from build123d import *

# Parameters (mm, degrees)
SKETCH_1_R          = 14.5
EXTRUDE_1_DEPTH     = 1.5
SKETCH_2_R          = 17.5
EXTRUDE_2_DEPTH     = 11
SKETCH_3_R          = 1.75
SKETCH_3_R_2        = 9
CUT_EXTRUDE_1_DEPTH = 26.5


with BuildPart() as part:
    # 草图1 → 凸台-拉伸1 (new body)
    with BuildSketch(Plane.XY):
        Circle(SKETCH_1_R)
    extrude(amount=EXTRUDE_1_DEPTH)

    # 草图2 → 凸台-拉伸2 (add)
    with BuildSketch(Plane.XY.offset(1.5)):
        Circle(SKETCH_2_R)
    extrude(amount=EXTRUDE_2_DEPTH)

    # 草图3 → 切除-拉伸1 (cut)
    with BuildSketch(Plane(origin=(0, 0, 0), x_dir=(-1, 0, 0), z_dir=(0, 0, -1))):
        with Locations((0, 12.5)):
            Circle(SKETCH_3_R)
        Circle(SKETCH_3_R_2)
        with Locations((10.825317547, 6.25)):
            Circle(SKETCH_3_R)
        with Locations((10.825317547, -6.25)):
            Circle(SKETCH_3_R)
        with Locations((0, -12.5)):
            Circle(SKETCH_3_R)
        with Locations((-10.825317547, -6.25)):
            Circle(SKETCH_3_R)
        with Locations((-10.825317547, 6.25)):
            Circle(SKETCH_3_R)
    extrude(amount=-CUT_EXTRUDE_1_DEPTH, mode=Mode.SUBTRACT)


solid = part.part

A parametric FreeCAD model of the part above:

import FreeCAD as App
import Part
import Sketcher

doc = App.newDocument("Part")
body = doc.addObject("PartDesign::Body", "Body")

# Sketch on XY plane
sketch1 = doc.addObject("Sketcher::SketchObject", "Sketch")
body.addObject(sketch1)
sketch1.AttachmentSupport = (doc.XY_Plane, [""])
sketch1.MapMode = "FlatFace"
sketch1.addGeometry(Part.Circle(App.Vector(0, 0, 0), App.Vector(0, 0, 1), 14), False)
sketch1.addConstraint([
    Sketcher.Constraint("Coincident", 0, 3, -1, 1),
    Sketcher.Constraint("Diameter", 0, 29.0),
])
pad1 = doc.addObject("PartDesign::Pad", "Pad")
body.addObject(pad1)
pad1.Profile = sketch1
pad1.Length = 1.5

# Sketch on XY plane
sketch2 = doc.addObject("Sketcher::SketchObject", "Sketch001")
body.addObject(sketch2)
sketch2.AttachmentSupport = (doc.XY_Plane, [""])
sketch2.MapMode = "FlatFace"
sketch2.AttachmentOffset = App.Placement(App.Vector(0, 0, 1.5), App.Rotation())
sketch2.addGeometry(Part.Circle(App.Vector(0, 0, 0), App.Vector(0, 0, 1), 18), False)
sketch2.addConstraint([
    Sketcher.Constraint("Coincident", 0, 3, -1, 1),
    Sketcher.Constraint("Diameter", 0, 35.0),
])
pad2 = doc.addObject("PartDesign::Pad", "Pad001")
body.addObject(pad2)
pad2.Profile = sketch2
pad2.Length = 11

# Sketch on XY plane
sketch3 = doc.addObject("Sketcher::SketchObject", "Sketch002")
body.addObject(sketch3)
sketch3.AttachmentSupport = (doc.XY_Plane, [""])
sketch3.MapMode = "FlatFace"
sketch3.addGeometry([
    Part.Circle(App.Vector(0, 12.5, 0), App.Vector(0, 0, 1), 1.8),  # 0
    Part.Circle(App.Vector(0, 0, 0), App.Vector(0, 0, 1), 9),  # 1
    Part.Circle(App.Vector(-10.8, 6.2, 0), App.Vector(0, 0, 1), 1.8),  # 2
    Part.Circle(App.Vector(-10.8, -6.2, 0), App.Vector(0, 0, 1), 1.8),  # 3
    Part.Circle(App.Vector(0, -12.5, 0), App.Vector(0, 0, 1), 1.8),  # 4
    Part.Circle(App.Vector(10.8, -6.2, 0), App.Vector(0, 0, 1), 1.8),  # 5
    Part.Circle(App.Vector(10.8, 6.2, 0), App.Vector(0, 0, 1), 1.8),  # 6
], False)
sketch3.addConstraint([
    Sketcher.Constraint("Coincident", 1, 3, -1, 1),
    Sketcher.Constraint("Equal", 0, 2),
    Sketcher.Constraint("Equal", 2, 3),
    Sketcher.Constraint("Equal", 3, 4),
    Sketcher.Constraint("Equal", 4, 5),
    Sketcher.Constraint("Equal", 5, 6),
    Sketcher.Constraint("Symmetric", 0, 3, 4, 3, -1, 1),
    Sketcher.Constraint("Symmetric", 2, 3, 5, 3, -1, 1),
    Sketcher.Constraint("Symmetric", 3, 3, 6, 3, -1, 1),
    Sketcher.Constraint("Symmetric", 3, 3, 5, 3, -2),
    Sketcher.Constraint("PointOnObject", 0, 3, -2),
    Sketcher.Constraint("Diameter", 1, 18.0),
    Sketcher.Constraint("Diameter", 0, 3.5),
    Sketcher.Constraint("DistanceY", 4, 3, 0, 3, 25.0),
    Sketcher.Constraint("DistanceY", 3, 3, 2, 3, 12.5),
    Sketcher.Constraint("DistanceX", 2, 3, -1, 1, 10.825318),
])
pocket1 = doc.addObject("PartDesign::Pocket", "Pocket")
body.addObject(pocket1)
pocket1.Profile = sketch3
pocket1.Length = 26.5
pocket1.Reversed = True

doc.recompute()
